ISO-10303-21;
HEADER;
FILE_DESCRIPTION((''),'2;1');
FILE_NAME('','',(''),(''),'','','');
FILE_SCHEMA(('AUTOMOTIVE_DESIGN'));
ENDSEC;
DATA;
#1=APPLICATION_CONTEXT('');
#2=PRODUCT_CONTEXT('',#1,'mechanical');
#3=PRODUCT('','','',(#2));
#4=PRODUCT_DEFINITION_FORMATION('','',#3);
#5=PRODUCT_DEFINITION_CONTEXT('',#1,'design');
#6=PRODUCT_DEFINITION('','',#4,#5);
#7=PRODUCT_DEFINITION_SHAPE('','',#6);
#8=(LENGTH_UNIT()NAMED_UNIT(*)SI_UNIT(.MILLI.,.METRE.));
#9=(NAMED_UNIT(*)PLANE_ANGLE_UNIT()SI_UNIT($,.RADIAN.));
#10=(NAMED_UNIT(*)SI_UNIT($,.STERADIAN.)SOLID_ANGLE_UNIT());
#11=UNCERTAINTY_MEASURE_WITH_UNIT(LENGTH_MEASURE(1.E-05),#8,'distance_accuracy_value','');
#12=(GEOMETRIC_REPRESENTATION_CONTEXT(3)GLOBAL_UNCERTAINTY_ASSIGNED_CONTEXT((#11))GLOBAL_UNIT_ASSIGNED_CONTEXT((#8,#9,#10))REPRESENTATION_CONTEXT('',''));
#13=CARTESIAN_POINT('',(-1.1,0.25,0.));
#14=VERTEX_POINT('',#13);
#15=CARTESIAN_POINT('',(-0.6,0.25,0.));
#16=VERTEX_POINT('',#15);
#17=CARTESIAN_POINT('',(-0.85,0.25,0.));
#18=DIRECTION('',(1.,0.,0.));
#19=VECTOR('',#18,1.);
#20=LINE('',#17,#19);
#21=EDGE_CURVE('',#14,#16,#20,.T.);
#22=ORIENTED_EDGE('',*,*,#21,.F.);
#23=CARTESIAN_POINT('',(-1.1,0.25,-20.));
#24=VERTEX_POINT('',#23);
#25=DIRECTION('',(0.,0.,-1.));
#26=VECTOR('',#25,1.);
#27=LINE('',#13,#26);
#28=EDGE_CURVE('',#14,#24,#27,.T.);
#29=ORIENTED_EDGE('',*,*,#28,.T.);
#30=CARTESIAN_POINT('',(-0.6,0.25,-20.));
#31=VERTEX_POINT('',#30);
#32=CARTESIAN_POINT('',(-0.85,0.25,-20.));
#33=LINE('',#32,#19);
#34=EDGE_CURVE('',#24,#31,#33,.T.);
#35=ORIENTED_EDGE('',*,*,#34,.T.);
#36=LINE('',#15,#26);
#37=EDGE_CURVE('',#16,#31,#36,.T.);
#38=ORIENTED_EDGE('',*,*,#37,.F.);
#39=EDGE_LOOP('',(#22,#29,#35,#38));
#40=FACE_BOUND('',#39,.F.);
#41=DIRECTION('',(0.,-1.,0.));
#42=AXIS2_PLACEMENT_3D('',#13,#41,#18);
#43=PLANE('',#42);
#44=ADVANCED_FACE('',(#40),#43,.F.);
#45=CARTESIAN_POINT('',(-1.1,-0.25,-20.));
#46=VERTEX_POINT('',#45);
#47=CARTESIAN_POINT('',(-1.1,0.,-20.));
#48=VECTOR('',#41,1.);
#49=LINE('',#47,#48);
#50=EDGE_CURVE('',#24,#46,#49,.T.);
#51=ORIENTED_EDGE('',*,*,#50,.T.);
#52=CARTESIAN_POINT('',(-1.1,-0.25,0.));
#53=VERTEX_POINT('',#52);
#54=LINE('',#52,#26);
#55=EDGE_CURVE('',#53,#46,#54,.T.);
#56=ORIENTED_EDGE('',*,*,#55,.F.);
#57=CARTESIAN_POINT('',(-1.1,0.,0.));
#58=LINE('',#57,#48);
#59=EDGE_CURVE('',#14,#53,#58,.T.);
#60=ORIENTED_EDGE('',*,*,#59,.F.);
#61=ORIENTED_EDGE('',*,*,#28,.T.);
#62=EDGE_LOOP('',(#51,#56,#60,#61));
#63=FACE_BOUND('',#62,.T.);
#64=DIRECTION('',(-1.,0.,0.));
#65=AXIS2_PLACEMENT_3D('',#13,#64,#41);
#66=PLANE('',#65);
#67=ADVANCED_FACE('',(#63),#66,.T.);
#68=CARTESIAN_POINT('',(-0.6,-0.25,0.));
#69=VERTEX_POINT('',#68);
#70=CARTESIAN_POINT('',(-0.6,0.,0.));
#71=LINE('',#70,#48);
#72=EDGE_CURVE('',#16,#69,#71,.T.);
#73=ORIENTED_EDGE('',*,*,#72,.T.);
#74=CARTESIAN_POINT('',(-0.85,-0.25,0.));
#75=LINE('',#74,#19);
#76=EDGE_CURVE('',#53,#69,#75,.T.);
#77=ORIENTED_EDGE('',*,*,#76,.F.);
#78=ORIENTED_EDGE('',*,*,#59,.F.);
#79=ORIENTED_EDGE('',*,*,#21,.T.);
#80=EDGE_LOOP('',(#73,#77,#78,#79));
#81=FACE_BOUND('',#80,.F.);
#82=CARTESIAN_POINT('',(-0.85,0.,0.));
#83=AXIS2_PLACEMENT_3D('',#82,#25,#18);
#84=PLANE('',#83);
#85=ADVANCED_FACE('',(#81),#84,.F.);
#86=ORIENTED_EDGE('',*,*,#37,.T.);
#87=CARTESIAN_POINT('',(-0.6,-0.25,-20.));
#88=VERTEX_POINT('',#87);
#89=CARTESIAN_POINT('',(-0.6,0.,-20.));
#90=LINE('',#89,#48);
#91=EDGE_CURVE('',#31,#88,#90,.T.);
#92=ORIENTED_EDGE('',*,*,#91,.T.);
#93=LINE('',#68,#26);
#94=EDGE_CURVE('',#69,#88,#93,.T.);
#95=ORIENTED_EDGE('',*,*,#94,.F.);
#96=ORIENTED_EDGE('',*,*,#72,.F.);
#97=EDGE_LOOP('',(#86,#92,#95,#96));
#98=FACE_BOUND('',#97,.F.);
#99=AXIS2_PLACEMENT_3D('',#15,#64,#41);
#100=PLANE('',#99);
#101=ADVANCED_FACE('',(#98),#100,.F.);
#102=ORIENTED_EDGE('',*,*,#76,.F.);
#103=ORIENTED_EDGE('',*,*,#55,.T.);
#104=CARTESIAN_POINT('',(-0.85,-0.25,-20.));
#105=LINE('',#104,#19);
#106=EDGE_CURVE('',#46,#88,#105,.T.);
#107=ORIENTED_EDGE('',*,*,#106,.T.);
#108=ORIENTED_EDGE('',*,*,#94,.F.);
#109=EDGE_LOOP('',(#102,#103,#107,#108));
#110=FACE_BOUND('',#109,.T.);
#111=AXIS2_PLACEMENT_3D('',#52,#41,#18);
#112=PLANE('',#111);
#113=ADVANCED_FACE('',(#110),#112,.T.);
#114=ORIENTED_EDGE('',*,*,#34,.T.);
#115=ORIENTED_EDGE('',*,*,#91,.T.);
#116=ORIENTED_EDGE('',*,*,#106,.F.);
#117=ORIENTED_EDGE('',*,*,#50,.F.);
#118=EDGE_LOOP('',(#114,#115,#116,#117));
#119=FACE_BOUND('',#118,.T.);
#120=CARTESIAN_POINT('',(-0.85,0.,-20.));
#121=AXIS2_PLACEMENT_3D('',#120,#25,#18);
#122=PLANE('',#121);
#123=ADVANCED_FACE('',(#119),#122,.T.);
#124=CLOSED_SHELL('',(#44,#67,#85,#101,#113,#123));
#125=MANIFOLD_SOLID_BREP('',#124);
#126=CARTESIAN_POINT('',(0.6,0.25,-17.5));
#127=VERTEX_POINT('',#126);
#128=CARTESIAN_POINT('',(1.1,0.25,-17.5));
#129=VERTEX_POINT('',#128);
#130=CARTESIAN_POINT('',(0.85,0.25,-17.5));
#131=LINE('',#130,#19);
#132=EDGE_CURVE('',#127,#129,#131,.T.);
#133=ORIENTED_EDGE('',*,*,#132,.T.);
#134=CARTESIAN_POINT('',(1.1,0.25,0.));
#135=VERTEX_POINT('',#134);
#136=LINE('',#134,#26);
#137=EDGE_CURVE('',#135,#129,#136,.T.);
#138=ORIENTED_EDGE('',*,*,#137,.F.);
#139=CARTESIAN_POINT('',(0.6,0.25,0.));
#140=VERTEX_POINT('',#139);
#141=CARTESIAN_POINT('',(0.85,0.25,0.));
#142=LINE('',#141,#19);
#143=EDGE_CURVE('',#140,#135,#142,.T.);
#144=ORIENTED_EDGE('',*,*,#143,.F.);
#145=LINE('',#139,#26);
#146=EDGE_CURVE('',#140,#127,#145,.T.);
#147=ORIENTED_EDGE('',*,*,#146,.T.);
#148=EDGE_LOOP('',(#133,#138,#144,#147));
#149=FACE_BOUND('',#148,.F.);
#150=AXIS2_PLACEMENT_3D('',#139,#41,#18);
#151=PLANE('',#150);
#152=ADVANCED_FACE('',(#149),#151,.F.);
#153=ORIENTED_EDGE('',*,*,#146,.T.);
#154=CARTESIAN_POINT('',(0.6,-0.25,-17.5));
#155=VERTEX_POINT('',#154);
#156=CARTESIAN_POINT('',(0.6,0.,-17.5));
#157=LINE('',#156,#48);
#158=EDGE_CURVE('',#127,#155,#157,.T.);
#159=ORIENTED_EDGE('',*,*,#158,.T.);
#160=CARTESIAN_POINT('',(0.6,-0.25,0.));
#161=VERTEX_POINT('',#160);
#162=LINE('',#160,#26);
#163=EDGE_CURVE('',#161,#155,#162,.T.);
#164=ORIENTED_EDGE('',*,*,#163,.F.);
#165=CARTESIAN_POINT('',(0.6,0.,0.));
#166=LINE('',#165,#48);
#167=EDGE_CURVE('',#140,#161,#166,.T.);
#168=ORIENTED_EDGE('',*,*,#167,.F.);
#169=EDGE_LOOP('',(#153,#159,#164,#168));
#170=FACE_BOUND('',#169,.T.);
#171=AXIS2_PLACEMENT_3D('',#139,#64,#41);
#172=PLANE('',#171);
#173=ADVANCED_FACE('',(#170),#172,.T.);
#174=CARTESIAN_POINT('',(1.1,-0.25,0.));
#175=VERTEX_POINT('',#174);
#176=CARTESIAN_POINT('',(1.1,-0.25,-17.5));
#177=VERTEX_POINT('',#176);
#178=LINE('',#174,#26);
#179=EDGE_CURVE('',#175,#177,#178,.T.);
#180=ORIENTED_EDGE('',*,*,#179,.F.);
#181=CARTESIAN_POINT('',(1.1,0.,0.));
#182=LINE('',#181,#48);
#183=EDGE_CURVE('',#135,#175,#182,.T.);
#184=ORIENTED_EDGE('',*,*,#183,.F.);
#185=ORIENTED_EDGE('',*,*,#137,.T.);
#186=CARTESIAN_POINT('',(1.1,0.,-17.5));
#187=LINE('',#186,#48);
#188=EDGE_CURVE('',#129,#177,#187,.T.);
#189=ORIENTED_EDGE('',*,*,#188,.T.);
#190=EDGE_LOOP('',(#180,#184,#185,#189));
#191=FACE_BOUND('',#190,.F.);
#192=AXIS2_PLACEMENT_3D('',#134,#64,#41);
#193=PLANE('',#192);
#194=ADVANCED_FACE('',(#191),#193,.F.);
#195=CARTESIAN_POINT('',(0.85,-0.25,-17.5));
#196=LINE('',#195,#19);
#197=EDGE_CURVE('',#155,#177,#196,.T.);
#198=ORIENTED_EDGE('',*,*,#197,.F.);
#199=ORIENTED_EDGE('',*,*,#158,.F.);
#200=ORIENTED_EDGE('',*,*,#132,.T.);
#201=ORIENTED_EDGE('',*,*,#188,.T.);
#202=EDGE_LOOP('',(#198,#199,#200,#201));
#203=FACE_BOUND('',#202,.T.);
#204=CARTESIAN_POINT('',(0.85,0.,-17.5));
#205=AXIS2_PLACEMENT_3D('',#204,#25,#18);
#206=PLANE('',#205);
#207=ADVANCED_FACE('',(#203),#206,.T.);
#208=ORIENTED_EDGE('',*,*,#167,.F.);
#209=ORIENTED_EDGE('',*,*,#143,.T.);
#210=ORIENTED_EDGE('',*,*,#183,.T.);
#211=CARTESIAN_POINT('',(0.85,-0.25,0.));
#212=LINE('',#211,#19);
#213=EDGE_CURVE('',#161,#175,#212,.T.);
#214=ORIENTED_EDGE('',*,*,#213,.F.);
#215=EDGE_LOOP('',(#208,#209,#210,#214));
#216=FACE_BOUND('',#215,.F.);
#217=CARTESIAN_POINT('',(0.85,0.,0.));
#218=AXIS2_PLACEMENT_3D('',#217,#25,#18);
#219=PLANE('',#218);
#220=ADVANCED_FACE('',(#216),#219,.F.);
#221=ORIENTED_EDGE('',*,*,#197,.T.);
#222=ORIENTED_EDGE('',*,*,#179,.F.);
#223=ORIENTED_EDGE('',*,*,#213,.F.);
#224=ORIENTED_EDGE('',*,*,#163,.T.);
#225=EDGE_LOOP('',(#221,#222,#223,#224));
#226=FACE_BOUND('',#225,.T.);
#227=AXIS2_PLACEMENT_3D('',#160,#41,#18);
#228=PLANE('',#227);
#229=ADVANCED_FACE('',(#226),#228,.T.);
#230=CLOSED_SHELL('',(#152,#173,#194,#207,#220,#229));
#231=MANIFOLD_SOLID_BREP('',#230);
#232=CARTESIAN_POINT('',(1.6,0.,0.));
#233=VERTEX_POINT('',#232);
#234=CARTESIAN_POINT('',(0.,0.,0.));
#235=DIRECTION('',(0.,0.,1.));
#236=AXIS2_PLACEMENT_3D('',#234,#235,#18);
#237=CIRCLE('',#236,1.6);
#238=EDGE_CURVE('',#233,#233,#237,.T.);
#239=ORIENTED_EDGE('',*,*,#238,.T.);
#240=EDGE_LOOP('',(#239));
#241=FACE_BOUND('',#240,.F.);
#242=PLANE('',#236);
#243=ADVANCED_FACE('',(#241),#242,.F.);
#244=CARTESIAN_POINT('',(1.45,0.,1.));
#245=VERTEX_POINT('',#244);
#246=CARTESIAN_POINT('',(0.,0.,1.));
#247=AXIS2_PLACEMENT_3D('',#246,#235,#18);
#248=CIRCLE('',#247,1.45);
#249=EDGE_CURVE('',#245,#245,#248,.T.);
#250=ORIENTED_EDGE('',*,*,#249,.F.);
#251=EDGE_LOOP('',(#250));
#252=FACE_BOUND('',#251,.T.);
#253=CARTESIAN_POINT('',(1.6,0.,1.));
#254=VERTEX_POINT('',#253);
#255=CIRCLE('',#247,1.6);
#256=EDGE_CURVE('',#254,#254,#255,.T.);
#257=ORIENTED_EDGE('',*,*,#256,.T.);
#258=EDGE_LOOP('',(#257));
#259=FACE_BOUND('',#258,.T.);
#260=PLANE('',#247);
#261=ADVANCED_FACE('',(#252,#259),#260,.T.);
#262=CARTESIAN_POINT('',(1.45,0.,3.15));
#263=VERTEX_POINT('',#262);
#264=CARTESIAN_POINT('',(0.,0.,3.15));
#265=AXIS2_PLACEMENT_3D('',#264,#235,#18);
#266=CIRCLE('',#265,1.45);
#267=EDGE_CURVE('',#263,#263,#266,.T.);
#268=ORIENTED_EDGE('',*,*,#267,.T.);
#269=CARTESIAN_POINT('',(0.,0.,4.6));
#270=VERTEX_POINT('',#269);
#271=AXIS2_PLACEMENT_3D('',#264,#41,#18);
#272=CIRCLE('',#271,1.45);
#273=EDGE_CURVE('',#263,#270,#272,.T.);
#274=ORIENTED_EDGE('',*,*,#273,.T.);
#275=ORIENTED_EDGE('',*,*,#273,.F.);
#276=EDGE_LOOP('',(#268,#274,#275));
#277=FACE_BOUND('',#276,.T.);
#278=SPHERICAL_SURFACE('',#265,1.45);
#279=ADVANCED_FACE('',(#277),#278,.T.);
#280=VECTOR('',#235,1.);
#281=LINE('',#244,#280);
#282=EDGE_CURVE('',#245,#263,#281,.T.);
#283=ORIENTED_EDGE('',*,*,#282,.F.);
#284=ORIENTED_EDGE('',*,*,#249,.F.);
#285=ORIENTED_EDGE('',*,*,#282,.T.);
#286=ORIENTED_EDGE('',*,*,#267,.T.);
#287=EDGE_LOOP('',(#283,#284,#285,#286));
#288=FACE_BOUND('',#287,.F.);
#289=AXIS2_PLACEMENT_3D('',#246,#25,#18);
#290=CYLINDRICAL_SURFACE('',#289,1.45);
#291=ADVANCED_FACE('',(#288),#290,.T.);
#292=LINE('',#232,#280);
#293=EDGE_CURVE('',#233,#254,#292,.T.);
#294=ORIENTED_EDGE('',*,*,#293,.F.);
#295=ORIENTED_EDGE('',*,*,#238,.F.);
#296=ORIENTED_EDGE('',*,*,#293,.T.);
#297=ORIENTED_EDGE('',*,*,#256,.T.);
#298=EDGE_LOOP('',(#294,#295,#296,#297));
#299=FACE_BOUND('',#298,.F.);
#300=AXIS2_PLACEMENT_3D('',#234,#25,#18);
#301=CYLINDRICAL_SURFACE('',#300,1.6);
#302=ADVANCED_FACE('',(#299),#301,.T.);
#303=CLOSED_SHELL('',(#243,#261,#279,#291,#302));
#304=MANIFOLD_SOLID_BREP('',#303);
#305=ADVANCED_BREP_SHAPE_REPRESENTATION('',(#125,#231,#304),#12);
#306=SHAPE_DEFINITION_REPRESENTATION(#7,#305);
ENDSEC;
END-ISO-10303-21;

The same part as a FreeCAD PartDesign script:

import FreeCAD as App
import Part
import Sketcher

V = App.Vector


def edges_at(feature, points):
    """Names of the edges that pass closest to the given points."""
    edges = feature.Shape.Edges
    near = lambda p: min(range(len(edges)), key=lambda i: edges[i].distToShape(Part.Vertex(*p))[0])
    return sorted({f"Edge{near(p) + 1}" for p in points})


def add_polygon(sketch, points):
    """Adds a closed chain of lines whose ends are joined by coincident constraints."""
    first, n = sketch.GeometryCount, len(points)
    for a, b in zip(points, points[1:] + points[:1]):
        sketch.addGeometry(Part.LineSegment(App.Vector(*a, 0), App.Vector(*b, 0)), False)
    for i in range(n):
        sketch.addConstraint(Sketcher.Constraint("Coincident", first + i, 2, first + (i + 1) % n, 1))

doc = App.newDocument("Part")
body = doc.addObject("PartDesign::Body", "Body")

# Sketch on XY plane
sketch1 = body.newObject("Sketcher::SketchObject", "Sketch")
sketch1.AttachmentSupport = (doc.getObject("XY_Plane"), [""])
sketch1.MapMode = "FlatFace"
sketch1.addGeometry(Part.Circle(V(0, 0, 0), V(0, 0, 1), 1.6), False)
sketch1.addConstraint([
    Sketcher.Constraint("Coincident", 0, 3, -1, 1),
    Sketcher.Constraint("Diameter", 0, 3.2),
])
pad1 = body.newObject("PartDesign::Pad", "Pad")
pad1.Profile = sketch1
pad1.Length = 1

# Sketch on XY plane
sketch2 = body.newObject("Sketcher::SketchObject", "Sketch001")
sketch2.AttachmentSupport = (doc.getObject("XY_Plane"), [""])
sketch2.MapMode = "FlatFace"
sketch2.AttachmentOffset = App.Placement(V(0, 0, 1), App.Rotation())
sketch2.addGeometry(Part.Circle(V(0, 0, 0), V(0, 0, 1), 1.4), False)
sketch2.addConstraint([
    Sketcher.Constraint("Coincident", 0, 3, -1, 1),
    Sketcher.Constraint("Diameter", 0, 2.9),
])
pad2 = body.newObject("PartDesign::Pad", "Pad001")
pad2.Profile = sketch2
pad2.Length = 3.6
doc.recompute()

fillet = body.newObject("PartDesign::Fillet", "Fillet")
fillet.Base = (pad2, edges_at(pad2, [(-1.45, 0, 4.6)]))
fillet.Radius = 1.45
body2 = doc.addObject("PartDesign::Body", "Body001")

# Sketch on XY plane
sketch3 = body2.newObject("Sketcher::SketchObject", "Sketch002")
sketch3.AttachmentSupport = (doc.getObject("XY_Plane001"), [""])
sketch3.MapMode = "FlatFace"
add_polygon(sketch3, [(0.6, -0.2), (0.6, 0.2), (1.1, 0.2), (1.1, -0.2)])  # lines 0-3
sketch3.addConstraint([
    Sketcher.Constraint("Vertical", 0),
    Sketcher.Constraint("Horizontal", 1),
    Sketcher.Constraint("Vertical", 2),
    Sketcher.Constraint("Horizontal", 3),
    Sketcher.Constraint("Equal", 3, 0),
    Sketcher.Constraint("DistanceX", 1, 1, 1, 2, 0.5),
    Sketcher.Constraint("DistanceX", -1, 1, 0, 2, 0.6),
    Sketcher.Constraint("DistanceY", -1, 1, 0, 2, 0.25),
])
pad3 = body2.newObject("PartDesign::Pad", "Pad002")
pad3.Profile = sketch3
pad3.Length = 17.5
pad3.Reversed = True
body3 = doc.addObject("PartDesign::Body", "Body002")

# Sketch on XY plane
sketch4 = body3.newObject("Sketcher::SketchObject", "Sketch003")
sketch4.AttachmentSupport = (doc.getObject("XY_Plane002"), [""])
sketch4.MapMode = "FlatFace"
add_polygon(sketch4, [(-1.1, -0.2), (-1.1, 0.2), (-0.6, 0.2), (-0.6, -0.2)])  # lines 0-3
sketch4.addConstraint([
    Sketcher.Constraint("Vertical", 0),
    Sketcher.Constraint("Horizontal", 1),
    Sketcher.Constraint("Vertical", 2),
    Sketcher.Constraint("Horizontal", 3),
    Sketcher.Constraint("Equal", 3, 0),
    Sketcher.Constraint("DistanceX", 1, 1, 1, 2, 0.5),
    Sketcher.Constraint("DistanceX", 0, 2, -1, 1, 1.1),
    Sketcher.Constraint("DistanceY", -1, 1, 0, 2, 0.25),
])
pad4 = body3.newObject("PartDesign::Pad", "Pad003")
pad4.Profile = sketch4
pad4.Length = 20
pad4.Reversed = True

doc.recompute()
